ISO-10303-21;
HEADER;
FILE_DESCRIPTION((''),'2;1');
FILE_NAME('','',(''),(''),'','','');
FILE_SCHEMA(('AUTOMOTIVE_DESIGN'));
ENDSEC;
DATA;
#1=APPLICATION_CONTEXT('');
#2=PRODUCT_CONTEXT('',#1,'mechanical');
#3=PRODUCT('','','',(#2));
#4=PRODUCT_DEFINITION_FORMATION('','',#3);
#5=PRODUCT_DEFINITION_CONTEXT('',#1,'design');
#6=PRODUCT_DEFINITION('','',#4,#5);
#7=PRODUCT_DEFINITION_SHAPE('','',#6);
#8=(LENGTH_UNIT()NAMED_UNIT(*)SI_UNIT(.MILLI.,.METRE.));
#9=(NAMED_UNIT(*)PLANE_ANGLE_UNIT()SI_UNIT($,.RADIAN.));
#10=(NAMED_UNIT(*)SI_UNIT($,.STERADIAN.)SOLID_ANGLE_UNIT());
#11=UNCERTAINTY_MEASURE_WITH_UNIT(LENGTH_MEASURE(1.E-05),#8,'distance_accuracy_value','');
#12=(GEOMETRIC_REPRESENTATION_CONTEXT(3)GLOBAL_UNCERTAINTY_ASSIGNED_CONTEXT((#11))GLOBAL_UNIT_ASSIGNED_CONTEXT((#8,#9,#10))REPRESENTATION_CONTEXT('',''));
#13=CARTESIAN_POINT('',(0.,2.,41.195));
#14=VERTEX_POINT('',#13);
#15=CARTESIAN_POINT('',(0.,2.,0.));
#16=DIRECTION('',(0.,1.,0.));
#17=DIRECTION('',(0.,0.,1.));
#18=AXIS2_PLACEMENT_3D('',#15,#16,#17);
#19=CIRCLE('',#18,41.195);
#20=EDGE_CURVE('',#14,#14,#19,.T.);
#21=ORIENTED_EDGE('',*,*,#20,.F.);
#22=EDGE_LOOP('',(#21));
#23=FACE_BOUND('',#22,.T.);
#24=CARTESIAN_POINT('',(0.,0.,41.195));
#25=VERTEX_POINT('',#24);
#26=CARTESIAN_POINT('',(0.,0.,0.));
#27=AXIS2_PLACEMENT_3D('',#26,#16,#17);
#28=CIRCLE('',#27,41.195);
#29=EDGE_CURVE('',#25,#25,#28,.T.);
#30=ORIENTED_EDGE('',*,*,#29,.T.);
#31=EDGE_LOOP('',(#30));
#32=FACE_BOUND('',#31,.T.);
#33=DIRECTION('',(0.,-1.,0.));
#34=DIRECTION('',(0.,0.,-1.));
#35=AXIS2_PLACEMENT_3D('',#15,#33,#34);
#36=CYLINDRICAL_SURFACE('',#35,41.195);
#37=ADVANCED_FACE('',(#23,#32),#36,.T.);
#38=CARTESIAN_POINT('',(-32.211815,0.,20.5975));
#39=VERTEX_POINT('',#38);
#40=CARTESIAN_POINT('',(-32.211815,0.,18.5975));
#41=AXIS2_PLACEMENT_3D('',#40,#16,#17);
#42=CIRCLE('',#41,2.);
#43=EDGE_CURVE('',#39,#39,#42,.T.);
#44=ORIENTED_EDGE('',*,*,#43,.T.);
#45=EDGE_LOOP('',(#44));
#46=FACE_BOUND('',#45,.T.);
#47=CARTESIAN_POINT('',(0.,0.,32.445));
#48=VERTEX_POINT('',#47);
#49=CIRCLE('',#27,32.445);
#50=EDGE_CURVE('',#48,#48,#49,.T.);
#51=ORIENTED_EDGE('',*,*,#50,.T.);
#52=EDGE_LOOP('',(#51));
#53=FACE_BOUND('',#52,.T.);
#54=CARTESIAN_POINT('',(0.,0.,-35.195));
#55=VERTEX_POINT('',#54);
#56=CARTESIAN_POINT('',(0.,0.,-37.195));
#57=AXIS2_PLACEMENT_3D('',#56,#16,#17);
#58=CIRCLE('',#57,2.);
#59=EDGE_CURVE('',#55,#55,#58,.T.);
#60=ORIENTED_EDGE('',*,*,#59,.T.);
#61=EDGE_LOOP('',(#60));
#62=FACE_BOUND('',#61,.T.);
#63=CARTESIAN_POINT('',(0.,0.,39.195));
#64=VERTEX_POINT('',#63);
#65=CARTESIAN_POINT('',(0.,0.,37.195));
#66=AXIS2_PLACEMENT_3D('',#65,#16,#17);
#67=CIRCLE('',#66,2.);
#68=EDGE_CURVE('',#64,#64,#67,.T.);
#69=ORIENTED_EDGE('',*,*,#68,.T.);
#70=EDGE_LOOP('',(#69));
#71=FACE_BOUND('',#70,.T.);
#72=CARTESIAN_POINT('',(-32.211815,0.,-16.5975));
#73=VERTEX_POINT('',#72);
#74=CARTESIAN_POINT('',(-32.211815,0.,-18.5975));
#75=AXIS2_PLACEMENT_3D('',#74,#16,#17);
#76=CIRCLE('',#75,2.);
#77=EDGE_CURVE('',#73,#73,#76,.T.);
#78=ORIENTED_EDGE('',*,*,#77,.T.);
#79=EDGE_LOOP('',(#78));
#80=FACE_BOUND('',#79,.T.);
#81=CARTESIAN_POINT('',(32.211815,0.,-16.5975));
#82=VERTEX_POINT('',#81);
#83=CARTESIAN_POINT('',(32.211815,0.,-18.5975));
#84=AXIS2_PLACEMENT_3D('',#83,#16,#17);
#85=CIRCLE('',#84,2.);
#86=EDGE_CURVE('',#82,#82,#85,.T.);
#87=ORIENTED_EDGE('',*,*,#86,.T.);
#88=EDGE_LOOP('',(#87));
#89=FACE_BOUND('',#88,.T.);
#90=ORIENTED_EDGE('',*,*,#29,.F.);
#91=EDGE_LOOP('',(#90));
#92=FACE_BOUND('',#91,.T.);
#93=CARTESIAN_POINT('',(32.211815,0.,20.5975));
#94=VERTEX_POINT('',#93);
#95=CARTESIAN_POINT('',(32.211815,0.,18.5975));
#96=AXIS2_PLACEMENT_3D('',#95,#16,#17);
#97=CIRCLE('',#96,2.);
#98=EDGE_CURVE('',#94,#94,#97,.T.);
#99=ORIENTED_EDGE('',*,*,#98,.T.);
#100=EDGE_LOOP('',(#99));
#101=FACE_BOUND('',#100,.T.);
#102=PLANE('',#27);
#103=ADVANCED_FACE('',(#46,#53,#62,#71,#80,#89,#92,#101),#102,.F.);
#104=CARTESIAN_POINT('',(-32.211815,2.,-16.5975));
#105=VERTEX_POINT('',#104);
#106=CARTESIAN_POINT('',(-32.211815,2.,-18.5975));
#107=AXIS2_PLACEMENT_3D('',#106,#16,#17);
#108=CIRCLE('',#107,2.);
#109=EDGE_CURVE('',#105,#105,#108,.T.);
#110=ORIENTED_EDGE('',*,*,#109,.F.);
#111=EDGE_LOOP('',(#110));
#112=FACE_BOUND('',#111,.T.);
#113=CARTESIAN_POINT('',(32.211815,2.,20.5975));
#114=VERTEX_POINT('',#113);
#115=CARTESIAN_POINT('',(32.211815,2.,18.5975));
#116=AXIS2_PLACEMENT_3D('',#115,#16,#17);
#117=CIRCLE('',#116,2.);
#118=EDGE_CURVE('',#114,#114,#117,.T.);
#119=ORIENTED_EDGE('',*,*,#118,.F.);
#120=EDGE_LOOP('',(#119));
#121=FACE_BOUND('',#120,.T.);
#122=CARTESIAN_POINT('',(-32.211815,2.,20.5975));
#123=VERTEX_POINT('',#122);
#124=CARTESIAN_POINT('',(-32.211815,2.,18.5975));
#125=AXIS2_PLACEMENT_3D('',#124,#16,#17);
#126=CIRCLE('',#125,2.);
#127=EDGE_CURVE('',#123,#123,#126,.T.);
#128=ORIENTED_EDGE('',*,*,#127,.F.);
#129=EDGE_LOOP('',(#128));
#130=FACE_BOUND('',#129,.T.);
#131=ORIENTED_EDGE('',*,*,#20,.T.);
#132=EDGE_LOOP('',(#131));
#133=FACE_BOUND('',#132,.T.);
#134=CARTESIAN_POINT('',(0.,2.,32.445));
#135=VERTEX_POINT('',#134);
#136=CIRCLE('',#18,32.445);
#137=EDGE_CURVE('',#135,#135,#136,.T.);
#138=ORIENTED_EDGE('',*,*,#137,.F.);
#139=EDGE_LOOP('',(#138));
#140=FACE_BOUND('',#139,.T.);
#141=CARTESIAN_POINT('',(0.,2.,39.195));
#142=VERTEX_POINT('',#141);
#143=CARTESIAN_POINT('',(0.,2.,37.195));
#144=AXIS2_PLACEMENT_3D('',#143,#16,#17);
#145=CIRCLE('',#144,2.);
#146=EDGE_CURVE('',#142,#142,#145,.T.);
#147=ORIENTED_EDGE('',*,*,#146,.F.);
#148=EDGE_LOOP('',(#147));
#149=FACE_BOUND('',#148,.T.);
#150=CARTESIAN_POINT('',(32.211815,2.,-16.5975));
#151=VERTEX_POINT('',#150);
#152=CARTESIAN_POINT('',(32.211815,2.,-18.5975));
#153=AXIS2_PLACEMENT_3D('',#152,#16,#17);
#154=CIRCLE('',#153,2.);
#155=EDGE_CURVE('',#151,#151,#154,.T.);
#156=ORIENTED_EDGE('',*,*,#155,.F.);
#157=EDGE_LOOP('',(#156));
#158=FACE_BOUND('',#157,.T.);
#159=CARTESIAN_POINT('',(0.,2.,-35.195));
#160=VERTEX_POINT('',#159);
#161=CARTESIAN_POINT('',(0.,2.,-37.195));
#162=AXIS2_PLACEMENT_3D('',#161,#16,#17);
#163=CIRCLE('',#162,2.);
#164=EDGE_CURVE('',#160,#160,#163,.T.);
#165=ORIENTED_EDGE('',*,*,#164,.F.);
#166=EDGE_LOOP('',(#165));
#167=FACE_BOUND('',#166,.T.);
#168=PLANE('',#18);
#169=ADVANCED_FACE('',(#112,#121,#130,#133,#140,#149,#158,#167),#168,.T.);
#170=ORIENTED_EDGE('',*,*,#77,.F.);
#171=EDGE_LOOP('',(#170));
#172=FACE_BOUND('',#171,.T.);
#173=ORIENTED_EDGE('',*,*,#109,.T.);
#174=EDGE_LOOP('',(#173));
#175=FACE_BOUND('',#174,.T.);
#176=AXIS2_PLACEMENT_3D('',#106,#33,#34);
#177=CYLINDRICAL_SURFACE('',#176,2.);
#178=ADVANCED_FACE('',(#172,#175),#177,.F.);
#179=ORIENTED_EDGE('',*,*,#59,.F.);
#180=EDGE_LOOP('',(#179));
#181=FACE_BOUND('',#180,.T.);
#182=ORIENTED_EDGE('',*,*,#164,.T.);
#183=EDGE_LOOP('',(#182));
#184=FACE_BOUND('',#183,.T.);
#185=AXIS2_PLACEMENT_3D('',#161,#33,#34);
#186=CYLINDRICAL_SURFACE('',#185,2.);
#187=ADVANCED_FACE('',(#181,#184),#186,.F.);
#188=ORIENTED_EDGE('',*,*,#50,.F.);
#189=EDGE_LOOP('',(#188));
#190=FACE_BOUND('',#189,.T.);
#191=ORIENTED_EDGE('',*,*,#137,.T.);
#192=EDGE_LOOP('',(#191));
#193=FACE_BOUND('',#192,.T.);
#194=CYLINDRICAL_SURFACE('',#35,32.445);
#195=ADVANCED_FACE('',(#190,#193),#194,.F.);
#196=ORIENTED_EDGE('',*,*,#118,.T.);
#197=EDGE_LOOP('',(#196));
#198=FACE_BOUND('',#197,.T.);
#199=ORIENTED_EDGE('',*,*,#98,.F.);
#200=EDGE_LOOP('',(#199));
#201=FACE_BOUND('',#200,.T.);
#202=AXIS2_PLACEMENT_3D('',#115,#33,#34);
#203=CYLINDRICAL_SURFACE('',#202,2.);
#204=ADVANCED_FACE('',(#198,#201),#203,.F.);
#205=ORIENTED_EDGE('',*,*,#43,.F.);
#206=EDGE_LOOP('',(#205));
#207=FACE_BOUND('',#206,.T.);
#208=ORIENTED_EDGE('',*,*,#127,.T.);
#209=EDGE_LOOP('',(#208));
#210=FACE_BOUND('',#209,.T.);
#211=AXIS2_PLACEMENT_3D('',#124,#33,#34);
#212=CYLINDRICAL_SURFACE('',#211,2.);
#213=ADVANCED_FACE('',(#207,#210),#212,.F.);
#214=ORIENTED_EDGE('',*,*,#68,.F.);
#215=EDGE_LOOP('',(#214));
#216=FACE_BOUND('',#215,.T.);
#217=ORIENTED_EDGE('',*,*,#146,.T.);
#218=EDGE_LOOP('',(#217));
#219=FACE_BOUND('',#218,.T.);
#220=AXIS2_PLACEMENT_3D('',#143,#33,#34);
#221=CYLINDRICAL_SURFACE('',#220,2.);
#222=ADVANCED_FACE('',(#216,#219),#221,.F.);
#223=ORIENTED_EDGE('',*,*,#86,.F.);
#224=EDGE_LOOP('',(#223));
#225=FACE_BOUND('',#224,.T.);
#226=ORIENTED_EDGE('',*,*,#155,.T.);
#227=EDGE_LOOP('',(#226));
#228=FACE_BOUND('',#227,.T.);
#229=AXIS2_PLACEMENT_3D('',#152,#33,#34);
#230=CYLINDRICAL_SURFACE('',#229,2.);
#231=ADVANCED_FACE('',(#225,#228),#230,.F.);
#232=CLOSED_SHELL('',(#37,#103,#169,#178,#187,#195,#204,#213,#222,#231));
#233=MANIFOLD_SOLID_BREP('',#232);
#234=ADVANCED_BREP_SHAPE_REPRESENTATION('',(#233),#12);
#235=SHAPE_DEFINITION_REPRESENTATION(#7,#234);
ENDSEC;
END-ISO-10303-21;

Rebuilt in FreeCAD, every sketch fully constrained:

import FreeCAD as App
import Part
import Sketcher

V = App.Vector
Q = App.Units.Quantity

doc = App.newDocument("Part")
body = doc.addObject("PartDesign::Body", "Body")

# Sketch on XZ plane
sketch1 = body.newObject("Sketcher::SketchObject", "Sketch")
sketch1.AttachmentSupport = (doc.getObject("XZ_Plane"), [""])
sketch1.MapMode = "FlatFace"
sketch1.addGeometry([
    Part.Circle(V(0, 0, 0), V(0, 0, 1), 41.2),  # 0
    Part.Circle(V(-32.2, -18.6, 0), V(0, 0, 1), 2),  # 1
    Part.Circle(V(0, -37.2, 0), V(0, 0, 1), 2),  # 2
    Part.Circle(V(-32.2, 18.6, 0), V(0, 0, 1), 2),  # 3
    Part.Circle(V(32.2, -18.6, 0), V(0, 0, 1), 2),  # 4
    Part.Circle(V(0, 0, 0), V(0, 0, 1), 32.4),  # 5
    Part.Circle(V(0, 37.2, 0), V(0, 0, 1), 2),  # 6
    Part.Circle(V(32.2, 18.6, 0), V(0, 0, 1), 2),  # 7
], False)
sketch1.addConstraint([
    Sketcher.Constraint("Coincident", 0, 3, -1, 1),
    Sketcher.Constraint("Coincident", 5, 3, -1, 1),
    Sketcher.Constraint("Equal", 1, 2),
    Sketcher.Constraint("Equal", 2, 3),
    Sketcher.Constraint("Equal", 3, 4),
    Sketcher.Constraint("Equal", 4, 6),
    Sketcher.Constraint("Equal", 6, 7),
    Sketcher.Constraint("Symmetric", 3, 3, 4, 3, -1, 1),
    Sketcher.Constraint("Symmetric", 2, 3, 6, 3, -1, 1),
    Sketcher.Constraint("Symmetric", 1, 3, 7, 3, -1, 1),
    Sketcher.Constraint("Symmetric", 1, 3, 4, 3, -2),
    Sketcher.Constraint("PointOnObject", 2, 3, -2),
    Sketcher.Constraint("Diameter", 1, Q("4 mm")),
    Sketcher.Constraint("Diameter", 0, Q("82.39 mm")),
    Sketcher.Constraint("Diameter", 5, Q("64.89 mm")),
    Sketcher.Constraint("DistanceY", 2, 3, -1, 1, Q("37.195 mm")),
    Sketcher.Constraint("DistanceY", 1, 3, 3, 3, Q("37.195 mm")),
    Sketcher.Constraint("DistanceX", 1, 3, 4, 3, Q("64.42363 mm")),
])
pad1 = body.newObject("PartDesign::Pad", "Pad")
pad1.Profile = sketch1
pad1.Length = 2
pad1.Reversed = True

doc.recompute()
